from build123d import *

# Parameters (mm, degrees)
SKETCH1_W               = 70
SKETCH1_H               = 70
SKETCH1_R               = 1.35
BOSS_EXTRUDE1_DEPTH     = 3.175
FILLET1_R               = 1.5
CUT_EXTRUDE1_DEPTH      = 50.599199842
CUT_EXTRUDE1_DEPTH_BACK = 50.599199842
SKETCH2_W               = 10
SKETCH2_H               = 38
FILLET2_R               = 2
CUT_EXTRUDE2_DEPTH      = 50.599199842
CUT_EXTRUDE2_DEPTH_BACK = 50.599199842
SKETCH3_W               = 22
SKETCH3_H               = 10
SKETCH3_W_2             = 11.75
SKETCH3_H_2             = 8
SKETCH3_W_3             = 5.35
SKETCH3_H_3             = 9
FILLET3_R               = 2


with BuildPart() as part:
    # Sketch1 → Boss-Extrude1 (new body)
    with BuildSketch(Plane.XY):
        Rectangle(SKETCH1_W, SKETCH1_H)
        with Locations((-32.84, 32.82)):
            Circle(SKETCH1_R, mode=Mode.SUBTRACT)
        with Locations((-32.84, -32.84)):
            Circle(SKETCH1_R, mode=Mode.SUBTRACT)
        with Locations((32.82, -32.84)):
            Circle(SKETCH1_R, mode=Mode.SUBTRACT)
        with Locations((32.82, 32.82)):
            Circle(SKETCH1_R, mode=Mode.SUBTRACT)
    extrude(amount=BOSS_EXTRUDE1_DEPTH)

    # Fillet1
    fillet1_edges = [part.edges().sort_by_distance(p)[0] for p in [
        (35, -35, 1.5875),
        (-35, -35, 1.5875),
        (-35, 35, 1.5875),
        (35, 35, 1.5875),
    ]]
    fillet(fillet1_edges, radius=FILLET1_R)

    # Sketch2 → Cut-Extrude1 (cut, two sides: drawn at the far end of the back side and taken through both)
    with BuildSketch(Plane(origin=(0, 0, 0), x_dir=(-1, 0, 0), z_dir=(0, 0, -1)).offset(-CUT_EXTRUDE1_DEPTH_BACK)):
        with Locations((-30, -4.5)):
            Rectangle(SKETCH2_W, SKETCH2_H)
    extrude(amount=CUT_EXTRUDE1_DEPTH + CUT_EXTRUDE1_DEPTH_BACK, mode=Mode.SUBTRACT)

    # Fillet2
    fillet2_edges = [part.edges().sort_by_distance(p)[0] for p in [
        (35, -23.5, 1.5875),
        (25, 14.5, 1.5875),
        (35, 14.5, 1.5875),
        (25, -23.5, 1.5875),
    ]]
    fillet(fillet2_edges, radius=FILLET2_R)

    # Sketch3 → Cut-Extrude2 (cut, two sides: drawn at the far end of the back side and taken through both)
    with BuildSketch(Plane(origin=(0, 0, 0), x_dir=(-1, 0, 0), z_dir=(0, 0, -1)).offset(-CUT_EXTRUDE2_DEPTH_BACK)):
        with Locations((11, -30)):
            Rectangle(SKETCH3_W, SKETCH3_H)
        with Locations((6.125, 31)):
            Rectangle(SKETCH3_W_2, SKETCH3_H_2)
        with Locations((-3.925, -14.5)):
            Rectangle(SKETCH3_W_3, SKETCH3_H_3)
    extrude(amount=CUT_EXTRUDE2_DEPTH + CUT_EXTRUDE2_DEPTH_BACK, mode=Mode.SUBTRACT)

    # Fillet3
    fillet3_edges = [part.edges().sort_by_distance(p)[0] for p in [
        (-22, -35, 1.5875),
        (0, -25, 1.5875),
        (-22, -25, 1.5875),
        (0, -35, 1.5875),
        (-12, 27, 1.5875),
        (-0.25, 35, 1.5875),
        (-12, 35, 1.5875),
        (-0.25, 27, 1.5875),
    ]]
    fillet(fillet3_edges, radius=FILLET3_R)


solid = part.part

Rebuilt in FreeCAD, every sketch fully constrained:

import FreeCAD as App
import Part
import Sketcher
Q = App.Units.Quantity


def edges_at(feature, points):
    """Names of the edges that pass closest to the given points."""
    edges = feature.Shape.Edges
    near = lambda p: min(range(len(edges)), key=lambda i: edges[i].distToShape(Part.Vertex(*p))[0])
    return sorted({f"Edge{near(p) + 1}" for p in points})


def add_polygon(sketch, points):
    """Adds a closed chain of lines whose ends are joined by coincident constraints."""
    first, n = sketch.GeometryCount, len(points)
    for a, b in zip(points, points[1:] + points[:1]):
        sketch.addGeometry(Part.LineSegment(App.Vector(*a, 0), App.Vector(*b, 0)), False)
    for i in range(n):
        sketch.addConstraint(Sketcher.Constraint("Coincident", first + i, 2, first + (i + 1) % n, 1))

doc = App.newDocument("Part")
body = doc.addObject("PartDesign::Body", "Body")

sketch1 = body.newObject("Sketcher::SketchObject", "Sketch")
sketch1.AttachmentSupport = (doc.getObject("XY_Plane"), [""])
sketch1.MapMode = "FlatFace"
add_polygon(sketch1, [(-35, 35), (-35, -35), (35, -35), (35, 35)])
sketch1.addGeometry(Part.Circle(App.Vector(-32.8, -32.8, 0), App.Vector(0, 0, 1), 1.4), False)
sketch1.addGeometry(Part.Circle(App.Vector(32.8, -32.8, 0), App.Vector(0, 0, 1), 1.4), False)
sketch1.addGeometry(Part.Circle(App.Vector(-32.8, 32.8, 0), App.Vector(0, 0, 1), 1.4), False)
sketch1.addGeometry(Part.Circle(App.Vector(32.8, 32.8, 0), App.Vector(0, 0, 1), 1.4), False)
sketch1.addConstraint(Sketcher.Constraint("Vertical", 0))
sketch1.addConstraint(Sketcher.Constraint("Horizontal", 1))
sketch1.addConstraint(Sketcher.Constraint("Vertical", 2))
sketch1.addConstraint(Sketcher.Constraint("Horizontal", 3))
sketch1.addConstraint(Sketcher.Constraint("Equal", 4, 5))
sketch1.addConstraint(Sketcher.Constraint("Equal", 5, 6))
sketch1.addConstraint(Sketcher.Constraint("Equal", 6, 7))
sketch1.addConstraint(Sketcher.Constraint("Symmetric", 0, 2, 2, 2, -1, 1))
sketch1.addConstraint(Sketcher.Constraint("Horizontal", 4, 3, 5, 3))
sketch1.addConstraint(Sketcher.Constraint("Horizontal", 6, 3, 7, 3))
sketch1.addConstraint(Sketcher.Constraint("Vertical", 4, 3, 6, 3))
sketch1.addConstraint(Sketcher.Constraint("Vertical", 5, 3, 7, 3))
sketch1.addConstraint(Sketcher.Constraint("Equal", 3, 0))
sketch1.addConstraint(Sketcher.Constraint("Diameter", 4, Q("2.7 mm")))
sketch1.addConstraint(Sketcher.Constraint("DistanceX", 1, 1, 1, 2, Q("70 mm")))
sketch1.addConstraint(Sketcher.Constraint("DistanceX", 4, 3, -1, 1, Q("32.84 mm")))
sketch1.addConstraint(Sketcher.Constraint("DistanceY", 4, 3, -1, 1, Q("32.84 mm")))
sketch1.addConstraint(Sketcher.Constraint("DistanceX", -1, 1, 5, 3, Q("32.82 mm")))
sketch1.addConstraint(Sketcher.Constraint("DistanceY", -1, 1, 6, 3, Q("32.82 mm")))
pad1 = body.newObject("PartDesign::Pad", "Pad")
pad1.Profile = sketch1
pad1.Length = 3.175
doc.recompute()

fillet = body.newObject("PartDesign::Fillet", "Fillet")
fillet.Base = (pad1, edges_at(pad1, [
    (35, -35, 1.587),
    (-35, -35, 1.587),
    (-35, 35, 1.587),
    (35, 35, 1.587),
]))
fillet.Radius = 1.5

sketch2 = body.newObject("Sketcher::SketchObject", "Sketch001")
sketch2.AttachmentSupport = (doc.getObject("XY_Plane"), [""])
sketch2.MapMode = "FlatFace"
add_polygon(sketch2, [(35, 14), (35, -24), (25, -24), (25, 14)])
sketch2.addConstraint(Sketcher.Constraint("Vertical", 0))
sketch2.addConstraint(Sketcher.Constraint("Horizontal", 1))
sketch2.addConstraint(Sketcher.Constraint("Vertical", 2))
sketch2.addConstraint(Sketcher.Constraint("Horizontal", 3))
sketch2.addConstraint(Sketcher.Constraint("DistanceX", 1, 2, 1, 1, Q("10 mm")))
sketch2.addConstraint(Sketcher.Constraint("DistanceY", 0, 2, 0, 1, Q("38 mm")))
sketch2.addConstraint(Sketcher.Constraint("DistanceX", -1, 1, 0, 2, Q("35 mm")))
sketch2.addConstraint(Sketcher.Constraint("DistanceY", 0, 2, -1, 1, Q("23.5 mm")))
pocket1 = body.newObject("PartDesign::Pocket", "Pocket")
pocket1.Profile = sketch2
pocket1.Type = "ThroughAll"
pocket1.Midplane = True
doc.recompute()

fillet2 = body.newObject("PartDesign::Fillet", "Fillet001")
fillet2.Base = (pocket1, edges_at(pocket1, [
    (35, -23.5, 1.587),
    (25, 14.5, 1.587),
    (35, 14.5, 1.587),
    (25, -23.5, 1.587),
]))
fillet2.Radius = 2

sketch3 = body.newObject("Sketcher::SketchObject", "Sketch002")
sketch3.AttachmentSupport = (doc.getObject("XY_Plane"), [""])
sketch3.MapMode = "FlatFace"
add_polygon(sketch3, [(0, -25), (0, -35), (-22, -35), (-22, -25)])
add_polygon(sketch3, [(0, 35), (0, 27), (-12, 27), (-12, 35)])
add_polygon(sketch3, [(7, -10), (7, -19), (1, -19), (1, -10)])
sketch3.addConstraint(Sketcher.Constraint("Vertical", 0))
sketch3.addConstraint(Sketcher.Constraint("Horizontal", 1))
sketch3.addConstraint(Sketcher.Constraint("Vertical", 2))
sketch3.addConstraint(Sketcher.Constraint("Horizontal", 3))
sketch3.addConstraint(Sketcher.Constraint("Vertical", 4))
sketch3.addConstraint(Sketcher.Constraint("Horizontal", 5))
sketch3.addConstraint(Sketcher.Constraint("Vertical", 6))
sketch3.addConstraint(Sketcher.Constraint("Horizontal", 7))
sketch3.addConstraint(Sketcher.Constraint("Vertical", 8))
sketch3.addConstraint(Sketcher.Constraint("Horizontal", 9))
sketch3.addConstraint(Sketcher.Constraint("Vertical", 10))
sketch3.addConstraint(Sketcher.Constraint("Horizontal", 11))
sketch3.addConstraint(Sketcher.Constraint("PointOnObject", 0, 2, -2))
sketch3.addConstraint(Sketcher.Constraint("DistanceX", 1, 2, 1, 1, Q("22 mm")))
sketch3.addConstraint(Sketcher.Constraint("DistanceY", 0, 2, 0, 1, Q("10 mm")))
sketch3.addConstraint(Sketcher.Constraint("DistanceY", 4, 2, 4, 1, Q("8 mm")))
sketch3.addConstraint(Sketcher.Constraint("DistanceY", 8, 2, 8, 1, Q("9 mm")))
sketch3.addConstraint(Sketcher.Constraint("DistanceY", 0, 2, -1, 1, Q("35 mm")))
sketch3.addConstraint(Sketcher.Constraint("DistanceY", -1, 1, 4, 2, Q("27 mm")))
sketch3.addConstraint(Sketcher.Constraint("DistanceX", 5, 2, -1, 1, Q("12 mm")))
sketch3.addConstraint(Sketcher.Constraint("DistanceY", 8, 2, -1, 1, Q("19 mm")))
sketch3.addConstraint(Sketcher.Constraint("DistanceX", 5, 2, 5, 1, Q("11.75 mm")))
sketch3.addConstraint(Sketcher.Constraint("DistanceX", 9, 2, 9, 1, Q("5.35 mm")))
sketch3.addConstraint(Sketcher.Constraint("DistanceX", -1, 1, 8, 2, Q("6.6 mm")))
pocket2 = body.newObject("PartDesign::Pocket", "Pocket001")
pocket2.Profile = sketch3
pocket2.Type = "ThroughAll"
pocket2.Midplane = True
doc.recompute()

fillet3 = body.newObject("PartDesign::Fillet", "Fillet002")
fillet3.Base = (pocket2, edges_at(pocket2, [
    (-22, -35, 1.587),
    (0, -25, 1.587),
    (-22, -25, 1.587),
    (0, -35, 1.587),
    (-12, 27, 1.587),
    (-0.25, 35, 1.587),
    (-12, 35, 1.587),
    (-0.25, 27, 1.587),
]))
fillet3.Radius = 2

doc.recompute()
